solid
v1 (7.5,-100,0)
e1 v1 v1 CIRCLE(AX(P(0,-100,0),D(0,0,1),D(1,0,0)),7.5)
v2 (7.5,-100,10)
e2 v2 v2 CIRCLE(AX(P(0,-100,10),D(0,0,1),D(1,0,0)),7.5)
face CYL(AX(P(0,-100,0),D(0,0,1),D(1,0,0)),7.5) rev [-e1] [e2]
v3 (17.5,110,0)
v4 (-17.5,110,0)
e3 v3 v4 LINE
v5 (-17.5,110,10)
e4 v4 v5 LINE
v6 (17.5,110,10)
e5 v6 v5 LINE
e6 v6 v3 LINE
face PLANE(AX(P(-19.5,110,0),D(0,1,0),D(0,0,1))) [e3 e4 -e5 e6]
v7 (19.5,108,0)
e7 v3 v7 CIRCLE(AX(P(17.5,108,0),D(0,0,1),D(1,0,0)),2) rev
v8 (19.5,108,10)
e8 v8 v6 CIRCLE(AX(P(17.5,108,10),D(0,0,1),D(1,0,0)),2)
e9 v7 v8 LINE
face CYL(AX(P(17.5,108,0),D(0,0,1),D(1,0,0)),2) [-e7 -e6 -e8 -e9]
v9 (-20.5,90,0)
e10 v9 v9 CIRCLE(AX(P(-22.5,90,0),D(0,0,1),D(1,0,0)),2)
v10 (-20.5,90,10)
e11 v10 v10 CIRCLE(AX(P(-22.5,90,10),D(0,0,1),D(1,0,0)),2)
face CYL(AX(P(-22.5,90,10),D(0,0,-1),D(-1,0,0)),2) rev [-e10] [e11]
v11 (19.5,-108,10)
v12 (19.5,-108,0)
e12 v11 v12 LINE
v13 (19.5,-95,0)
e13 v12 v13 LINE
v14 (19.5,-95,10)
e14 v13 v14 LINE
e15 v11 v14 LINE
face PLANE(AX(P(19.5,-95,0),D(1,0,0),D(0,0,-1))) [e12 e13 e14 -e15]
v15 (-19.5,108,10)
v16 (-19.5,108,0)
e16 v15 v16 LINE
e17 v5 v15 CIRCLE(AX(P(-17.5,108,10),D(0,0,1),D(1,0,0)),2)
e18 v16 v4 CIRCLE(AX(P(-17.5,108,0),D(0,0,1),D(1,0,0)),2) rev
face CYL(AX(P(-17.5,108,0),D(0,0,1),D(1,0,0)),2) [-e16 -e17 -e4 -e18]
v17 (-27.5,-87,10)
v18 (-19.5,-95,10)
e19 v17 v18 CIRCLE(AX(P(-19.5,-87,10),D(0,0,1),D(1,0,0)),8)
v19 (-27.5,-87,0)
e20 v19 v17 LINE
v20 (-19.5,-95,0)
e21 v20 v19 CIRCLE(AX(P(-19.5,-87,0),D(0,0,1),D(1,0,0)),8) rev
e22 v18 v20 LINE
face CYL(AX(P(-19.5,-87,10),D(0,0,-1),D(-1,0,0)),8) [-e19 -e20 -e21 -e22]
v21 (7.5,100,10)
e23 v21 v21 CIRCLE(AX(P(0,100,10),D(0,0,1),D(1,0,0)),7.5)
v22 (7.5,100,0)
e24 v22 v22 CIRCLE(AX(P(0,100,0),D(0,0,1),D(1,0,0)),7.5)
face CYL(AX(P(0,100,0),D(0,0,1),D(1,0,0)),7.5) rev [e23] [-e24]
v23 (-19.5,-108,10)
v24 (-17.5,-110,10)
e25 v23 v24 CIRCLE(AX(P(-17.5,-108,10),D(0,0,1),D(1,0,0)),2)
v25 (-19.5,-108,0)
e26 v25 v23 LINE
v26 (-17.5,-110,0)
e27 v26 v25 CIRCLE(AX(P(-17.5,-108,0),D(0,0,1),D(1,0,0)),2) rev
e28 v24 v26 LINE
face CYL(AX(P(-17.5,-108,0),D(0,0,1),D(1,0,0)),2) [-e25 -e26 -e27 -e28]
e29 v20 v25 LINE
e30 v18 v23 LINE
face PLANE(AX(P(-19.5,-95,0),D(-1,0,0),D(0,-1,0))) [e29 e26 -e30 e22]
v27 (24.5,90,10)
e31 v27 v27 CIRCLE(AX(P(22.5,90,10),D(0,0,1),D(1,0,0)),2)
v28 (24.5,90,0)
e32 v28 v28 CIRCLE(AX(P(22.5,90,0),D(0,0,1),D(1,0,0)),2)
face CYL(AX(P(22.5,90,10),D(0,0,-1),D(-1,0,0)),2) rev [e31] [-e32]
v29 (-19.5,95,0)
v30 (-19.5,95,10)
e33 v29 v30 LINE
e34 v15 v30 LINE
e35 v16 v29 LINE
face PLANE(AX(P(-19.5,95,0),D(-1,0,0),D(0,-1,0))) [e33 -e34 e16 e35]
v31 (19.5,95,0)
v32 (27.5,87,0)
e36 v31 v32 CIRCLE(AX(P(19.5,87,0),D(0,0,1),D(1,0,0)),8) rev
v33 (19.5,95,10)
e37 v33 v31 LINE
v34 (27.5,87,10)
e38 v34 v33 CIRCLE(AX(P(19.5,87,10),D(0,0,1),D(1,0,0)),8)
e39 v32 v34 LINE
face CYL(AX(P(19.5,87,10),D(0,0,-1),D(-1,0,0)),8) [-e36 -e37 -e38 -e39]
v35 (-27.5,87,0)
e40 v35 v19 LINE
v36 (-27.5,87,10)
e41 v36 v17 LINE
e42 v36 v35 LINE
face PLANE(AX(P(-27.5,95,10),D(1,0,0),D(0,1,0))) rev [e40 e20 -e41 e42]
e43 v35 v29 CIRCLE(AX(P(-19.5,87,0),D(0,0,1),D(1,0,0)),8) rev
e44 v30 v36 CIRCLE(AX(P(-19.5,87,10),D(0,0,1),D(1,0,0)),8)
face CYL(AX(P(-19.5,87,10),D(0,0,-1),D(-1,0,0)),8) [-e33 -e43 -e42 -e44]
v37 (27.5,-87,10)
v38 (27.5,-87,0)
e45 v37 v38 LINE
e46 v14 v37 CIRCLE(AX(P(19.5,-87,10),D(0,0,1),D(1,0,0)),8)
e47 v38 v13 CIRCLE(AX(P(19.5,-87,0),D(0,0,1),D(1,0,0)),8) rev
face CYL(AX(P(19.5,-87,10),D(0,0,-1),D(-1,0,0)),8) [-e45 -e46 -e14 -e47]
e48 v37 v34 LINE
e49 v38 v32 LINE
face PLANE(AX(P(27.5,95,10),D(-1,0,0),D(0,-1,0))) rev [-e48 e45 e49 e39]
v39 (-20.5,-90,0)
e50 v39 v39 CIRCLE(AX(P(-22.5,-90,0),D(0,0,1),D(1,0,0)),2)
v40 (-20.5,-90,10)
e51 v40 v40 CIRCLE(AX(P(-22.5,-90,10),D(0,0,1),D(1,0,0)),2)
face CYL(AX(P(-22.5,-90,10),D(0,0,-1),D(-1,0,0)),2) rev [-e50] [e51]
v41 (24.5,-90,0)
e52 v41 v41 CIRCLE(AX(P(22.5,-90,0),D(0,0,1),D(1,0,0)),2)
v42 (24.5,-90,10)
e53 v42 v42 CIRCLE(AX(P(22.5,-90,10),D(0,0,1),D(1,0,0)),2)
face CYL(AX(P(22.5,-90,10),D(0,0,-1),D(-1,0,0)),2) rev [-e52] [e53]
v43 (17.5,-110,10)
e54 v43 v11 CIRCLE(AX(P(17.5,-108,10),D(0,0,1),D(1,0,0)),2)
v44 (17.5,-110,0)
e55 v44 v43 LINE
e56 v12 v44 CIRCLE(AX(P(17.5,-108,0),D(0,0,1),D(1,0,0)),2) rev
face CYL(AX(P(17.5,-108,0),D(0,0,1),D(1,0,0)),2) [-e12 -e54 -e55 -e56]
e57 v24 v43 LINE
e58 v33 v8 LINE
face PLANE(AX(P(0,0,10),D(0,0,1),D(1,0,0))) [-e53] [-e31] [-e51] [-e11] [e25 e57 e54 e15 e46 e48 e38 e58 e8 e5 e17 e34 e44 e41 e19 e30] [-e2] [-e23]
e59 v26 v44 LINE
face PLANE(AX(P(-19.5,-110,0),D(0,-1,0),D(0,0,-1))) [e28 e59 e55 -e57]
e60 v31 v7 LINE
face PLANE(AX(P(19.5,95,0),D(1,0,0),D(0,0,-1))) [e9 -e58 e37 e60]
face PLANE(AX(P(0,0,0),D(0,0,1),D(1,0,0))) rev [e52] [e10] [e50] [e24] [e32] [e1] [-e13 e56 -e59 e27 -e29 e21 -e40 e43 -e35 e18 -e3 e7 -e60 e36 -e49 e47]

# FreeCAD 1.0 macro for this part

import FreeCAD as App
import Part
import Sketcher

V = App.Vector
Q = App.Units.Quantity


def edges_at(feature, points):
    """Names of the edges that pass closest to the given points."""
    edges = feature.Shape.Edges
    near = lambda p: min(range(len(edges)), key=lambda i: edges[i].distToShape(Part.Vertex(*p))[0])
    return sorted({f"Edge{near(p) + 1}" for p in points})


def add_polygon(sketch, points):
    """Adds a closed chain of lines whose ends are joined by coincident constraints."""
    first, n = sketch.GeometryCount, len(points)
    for a, b in zip(points, points[1:] + points[:1]):
        sketch.addGeometry(Part.LineSegment(App.Vector(*a, 0), App.Vector(*b, 0)), False)
    for i in range(n):
        sketch.addConstraint(Sketcher.Constraint("Coincident", first + i, 2, first + (i + 1) % n, 1))

doc = App.newDocument("Part")
body = doc.addObject("PartDesign::Body", "Body")

# Sketch on XY plane
sketch1 = body.newObject("Sketcher::SketchObject", "Sketch")
sketch1.AttachmentSupport = (doc.getObject("XY_Plane"), [""])
sketch1.MapMode = "FlatFace"
add_polygon(sketch1, [(-27.5, 95), (-27.5, -95), (27.5, -95), (27.5, 95)])  # lines 0-3
sketch1.addGeometry(Part.Circle(V(-22.5, -90, 0), V(0, 0, 1), 2), False)  # 4
sketch1.addGeometry(Part.Circle(V(22.5, -90, 0), V(0, 0, 1), 2), False)  # 5
sketch1.addGeometry(Part.Circle(V(-22.5, 90, 0), V(0, 0, 1), 2), False)  # 6
sketch1.addGeometry(Part.Circle(V(22.5, 90, 0), V(0, 0, 1), 2), False)  # 7
sketch1.addConstraint(Sketcher.Constraint("Vertical", 0))
sketch1.addConstraint(Sketcher.Constraint("Horizontal", 1))
sketch1.addConstraint(Sketcher.Constraint("Vertical", 2))
sketch1.addConstraint(Sketcher.Constraint("Horizontal", 3))
sketch1.addConstraint(Sketcher.Constraint("Equal", 4, 5))
sketch1.addConstraint(Sketcher.Constraint("Equal", 5, 6))
sketch1.addConstraint(Sketcher.Constraint("Equal", 6, 7))
sketch1.addConstraint(Sketcher.Constraint("Symmetric", 5, 3, 6, 3, -1, 1))
sketch1.addConstraint(Sketcher.Constraint("Symmetric", 4, 3, 7, 3, -1, 1))
sketch1.addConstraint(Sketcher.Constraint("Symmetric", 0, 2, 2, 2, -1, 1))
sketch1.addConstraint(Sketcher.Constraint("Symmetric", 4, 3, 5, 3, -2))
sketch1.addConstraint(Sketcher.Constraint("Diameter", 4, Q("4 mm")))
sketch1.addConstraint(Sketcher.Constraint("DistanceX", 1, 1, 1, 2, Q("55 mm")))
sketch1.addConstraint(Sketcher.Constraint("DistanceY", 0, 2, 0, 1, Q("190 mm")))
sketch1.addConstraint(Sketcher.Constraint("DistanceY", 4, 3, -1, 1, Q("90 mm")))
sketch1.addConstraint(Sketcher.Constraint("DistanceX", 4, 3, 5, 3, Q("45 mm")))
pad1 = body.newObject("PartDesign::Pad", "Pad")
pad1.Profile = sketch1
pad1.Length = 10
doc.recompute()

fillet = body.newObject("PartDesign::Fillet", "Fillet")
fillet.Base = (pad1, edges_at(pad1, [
    (27.5, -95, 5),
    (-27.5, -95, 5),
    (-27.5, 95, 5),
    (27.5, 95, 5),
]))
fillet.Radius = 8

# Sketch on XY plane
sketch2 = body.newObject("Sketcher::SketchObject", "Sketch001")
sketch2.AttachmentSupport = (doc.getObject("XY_Plane"), [""])
sketch2.MapMode = "FlatFace"
sketch2.AttachmentOffset = App.Placement(V(0, 0, 10), App.Rotation())
add_polygon(sketch2, [(-19.5, 110), (-19.5, 95), (19.5, 95), (19.5, 110)])  # lines 0-3
add_polygon(sketch2, [(-19.5, -95), (-19.5, -110), (19.5, -110), (19.5, -95)])  # lines 4-7
sketch2.addConstraint(Sketcher.Constraint("Vertical", 0))
sketch2.addConstraint(Sketcher.Constraint("Horizontal", 1))
sketch2.addConstraint(Sketcher.Constraint("Vertical", 2))
sketch2.addConstraint(Sketcher.Constraint("Horizontal", 3))
sketch2.addConstraint(Sketcher.Constraint("Vertical", 4))
sketch2.addConstraint(Sketcher.Constraint("Horizontal", 5))
sketch2.addConstraint(Sketcher.Constraint("Vertical", 6))
sketch2.addConstraint(Sketcher.Constraint("Horizontal", 7))
sketch2.addConstraint(Sketcher.Constraint("Symmetric", 2, 2, 4, 2, -1, 1))
sketch2.addConstraint(Sketcher.Constraint("Symmetric", 0, 2, 6, 2, -1, 1))
sketch2.addConstraint(Sketcher.Constraint("Vertical", 3, 2, 4, 2))
sketch2.addConstraint(Sketcher.Constraint("DistanceX", 1, 1, 1, 2, Q("39 mm")))
sketch2.addConstraint(Sketcher.Constraint("DistanceY", 0, 2, 0, 1, Q("15 mm")))
sketch2.addConstraint(Sketcher.Constraint("DistanceY", -1, 1, 0, 2, Q("95 mm")))
pad2 = body.newObject("PartDesign::Pad", "Pad001")
pad2.Profile = sketch2
pad2.Length = 10
pad2.Reversed = True

# Sketch on XY plane
sketch3 = body.newObject("Sketcher::SketchObject", "Sketch002")
sketch3.AttachmentSupport = (doc.getObject("XY_Plane"), [""])
sketch3.MapMode = "FlatFace"
sketch3.AttachmentOffset = App.Placement(V(0, 0, 10), App.Rotation())
sketch3.addGeometry(Part.Circle(V(0, 100, 0), V(0, 0, 1), 7.5), False)
sketch3.addGeometry(Part.Circle(V(0, -100, 0), V(0, 0, 1), 7.5), False)
sketch3.addConstraint(Sketcher.Constraint("Equal", 0, 1))
sketch3.addConstraint(Sketcher.Constraint("Symmetric", 0, 3, 1, 3, -1, 1))
sketch3.addConstraint(Sketcher.Constraint("PointOnObject", 0, 3, -2))
sketch3.addConstraint(Sketcher.Constraint("Diameter", 0, Q("15 mm")))
sketch3.addConstraint(Sketcher.Constraint("DistanceY", -1, 1, 0, 3, Q("100 mm")))
pocket1 = body.newObject("PartDesign::Pocket", "Pocket")
pocket1.Profile = sketch3
pocket1.Length = 10
doc.recompute()

fillet2 = body.newObject("PartDesign::Fillet", "Fillet001")
fillet2.Base = (pocket1, edges_at(pocket1, [
    (-19.5, 110, 5),
    (19.5, 110, 5),
    (-19.5, -110, 5),
    (19.5, -110, 5),
]))
fillet2.Radius = 2

doc.recompute()
